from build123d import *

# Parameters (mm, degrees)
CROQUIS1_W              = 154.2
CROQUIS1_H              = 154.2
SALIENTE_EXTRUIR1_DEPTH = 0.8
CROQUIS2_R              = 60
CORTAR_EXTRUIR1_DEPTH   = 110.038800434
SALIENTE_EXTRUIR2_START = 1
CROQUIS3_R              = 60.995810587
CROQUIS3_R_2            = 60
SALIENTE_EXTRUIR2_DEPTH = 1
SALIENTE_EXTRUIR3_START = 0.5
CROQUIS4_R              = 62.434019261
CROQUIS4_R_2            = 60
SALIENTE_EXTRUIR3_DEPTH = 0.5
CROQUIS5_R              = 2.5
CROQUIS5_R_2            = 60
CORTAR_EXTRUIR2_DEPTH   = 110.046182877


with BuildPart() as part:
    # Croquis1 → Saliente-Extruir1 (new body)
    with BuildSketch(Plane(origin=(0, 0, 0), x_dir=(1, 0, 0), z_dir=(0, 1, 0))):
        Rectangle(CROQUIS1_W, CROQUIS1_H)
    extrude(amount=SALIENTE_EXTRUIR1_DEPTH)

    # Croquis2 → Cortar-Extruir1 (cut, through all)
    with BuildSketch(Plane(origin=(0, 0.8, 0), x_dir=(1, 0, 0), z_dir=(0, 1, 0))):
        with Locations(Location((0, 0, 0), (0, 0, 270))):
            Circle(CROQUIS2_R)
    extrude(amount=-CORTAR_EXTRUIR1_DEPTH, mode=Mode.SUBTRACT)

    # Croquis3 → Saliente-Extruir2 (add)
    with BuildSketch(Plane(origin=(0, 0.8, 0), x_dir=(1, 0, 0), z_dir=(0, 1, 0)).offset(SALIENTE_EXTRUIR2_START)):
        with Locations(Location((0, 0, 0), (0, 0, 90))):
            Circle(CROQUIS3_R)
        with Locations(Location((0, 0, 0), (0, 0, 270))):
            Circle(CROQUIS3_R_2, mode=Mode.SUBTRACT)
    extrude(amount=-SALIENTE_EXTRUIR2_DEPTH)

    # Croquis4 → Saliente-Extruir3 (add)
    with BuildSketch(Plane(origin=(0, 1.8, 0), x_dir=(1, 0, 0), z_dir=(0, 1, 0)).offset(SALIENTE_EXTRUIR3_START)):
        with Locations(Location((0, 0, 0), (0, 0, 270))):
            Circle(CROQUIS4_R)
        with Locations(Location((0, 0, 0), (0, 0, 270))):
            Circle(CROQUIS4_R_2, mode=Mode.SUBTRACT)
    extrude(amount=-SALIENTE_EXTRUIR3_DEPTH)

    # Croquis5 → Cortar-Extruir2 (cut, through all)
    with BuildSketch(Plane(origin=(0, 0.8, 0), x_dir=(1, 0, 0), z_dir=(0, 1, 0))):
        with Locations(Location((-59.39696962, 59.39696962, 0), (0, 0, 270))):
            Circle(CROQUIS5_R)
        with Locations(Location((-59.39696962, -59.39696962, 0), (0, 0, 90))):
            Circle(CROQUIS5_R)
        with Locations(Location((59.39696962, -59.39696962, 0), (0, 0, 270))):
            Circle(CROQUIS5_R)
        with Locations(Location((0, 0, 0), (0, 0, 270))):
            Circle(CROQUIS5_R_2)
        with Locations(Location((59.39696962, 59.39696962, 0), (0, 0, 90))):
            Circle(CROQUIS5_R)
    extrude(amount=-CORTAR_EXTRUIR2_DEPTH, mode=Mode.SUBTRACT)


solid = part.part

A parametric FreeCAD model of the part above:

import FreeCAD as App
import Part
import Sketcher

V = App.Vector

doc = App.newDocument("Part")
params = doc.addObject("Spreadsheet::Sheet", "Params")
for row, (alias, value) in enumerate([
    ("sketch1_width", "154.2 mm"),
    ("pad1_length", "0.8 mm"),
    ("sketch2_diameter", "120 mm"),
    ("sketch3_diameter", "120 mm"),
    ("pad2_length", "1 mm"),
    ("sketch4_diameter", "120 mm"),
    ("pad3_length", "0.5 mm"),
    ("sketch5_diameter", "5 mm"),
    ("sketch5_diameter2", "120 mm"),
], start=1):
    params.set(f"A{row}", alias)
    params.set(f"B{row}", "=" + value)
    params.setAlias(f"B{row}", alias)

body = doc.addObject("PartDesign::Body", "Body")

sketch1 = body.newObject("Sketcher::SketchObject", "Sketch")
sketch1.AttachmentSupport = (doc.getObject("XZ_Plane"), [""])
sketch1.MapMode = "FlatFace"
sketch1.addGeometry([
    Part.LineSegment(V(-77, -77, 0), V(-77, 77, 0)),
    Part.LineSegment(V(-77, 77, 0), V(77, 77, 0)),
    Part.LineSegment(V(77, 77, 0), V(77, -77, 0)),
    Part.LineSegment(V(77, -77, 0), V(-77, -77, 0)),
], False)
sketch1.addConstraint([
    Sketcher.Constraint("Coincident", 0, 2, 1, 1),
    Sketcher.Constraint("Coincident", 1, 2, 2, 1),
    Sketcher.Constraint("Coincident", 2, 2, 3, 1),
    Sketcher.Constraint("Coincident", 3, 2, 0, 1),
    Sketcher.Constraint("Vertical", 0),
    Sketcher.Constraint("Horizontal", 1),
    Sketcher.Constraint("Vertical", 2),
    Sketcher.Constraint("Horizontal", 3),
    Sketcher.Constraint("Symmetric", 0, 2, 2, 2, -1, 1),
    Sketcher.Constraint("Equal", 3, 0),
    Sketcher.Constraint("DistanceX", 1, 1, 1, 2, 154.2),
])
sketch1.setExpression("Constraints[10]", "Params.sketch1_width")
pad1 = body.newObject("PartDesign::Pad", "Pad")
pad1.Profile = sketch1
pad1.setExpression("Length", "Params.pad1_length")
pad1.Reversed = True

sketch2 = body.newObject("Sketcher::SketchObject", "Sketch001")
sketch2.AttachmentSupport = (doc.getObject("XZ_Plane"), [""])
sketch2.MapMode = "FlatFace"
sketch2.AttachmentOffset = App.Placement(V(0, 0, -0.8), App.Rotation())
sketch2.addGeometry(Part.Circle(V(0, 0, 0), V(0, 0, 1), 60), False)
sketch2.addConstraint([
    Sketcher.Constraint("Coincident", 0, 3, -1, 1),
    Sketcher.Constraint("Diameter", 0, 120.0),
])
sketch2.setExpression("Constraints[1]", "Params.sketch2_diameter")
pocket1 = body.newObject("PartDesign::Pocket", "Pocket")
pocket1.Profile = sketch2
pocket1.Type = "ThroughAll"
pocket1.Reversed = True

sketch3 = body.newObject("Sketcher::SketchObject", "Sketch002")
sketch3.AttachmentSupport = (doc.getObject("XZ_Plane"), [""])
sketch3.MapMode = "FlatFace"
sketch3.AttachmentOffset = App.Placement(V(0, 0, -1.8), App.Rotation())
sketch3.addGeometry([
    Part.Circle(V(0, 0, 0), V(0, 0, 1), 61),
    Part.Circle(V(0, 0, 0), V(0, 0, 1), 60),
], False)
sketch3.addConstraint([
    Sketcher.Constraint("Coincident", 0, 3, -1, 1),
    Sketcher.Constraint("Coincident", 1, 3, -1, 1),
    Sketcher.Constraint("Diameter", 1, 120.0),
    Sketcher.Constraint("Diameter", 0, 121.991621),
])
sketch3.setExpression("Constraints[2]", "Params.sketch3_diameter")
pad2 = body.newObject("PartDesign::Pad", "Pad001")
pad2.Profile = sketch3
pad2.setExpression("Length", "Params.pad2_length")

sketch4 = body.newObject("Sketcher::SketchObject", "Sketch003")
sketch4.AttachmentSupport = (doc.getObject("XZ_Plane"), [""])
sketch4.MapMode = "FlatFace"
sketch4.AttachmentOffset = App.Placement(V(0, 0, -2.3), App.Rotation())
sketch4.addGeometry([
    Part.Circle(V(0, 0, 0), V(0, 0, 1), 62),
    Part.Circle(V(0, 0, 0), V(0, 0, 1), 60),
], False)
sketch4.addConstraint([
    Sketcher.Constraint("Coincident", 0, 3, -1, 1),
    Sketcher.Constraint("Coincident", 1, 3, -1, 1),
    Sketcher.Constraint("Diameter", 1, 120.0),
    Sketcher.Constraint("Diameter", 0, 124.868039),
])
sketch4.setExpression("Constraints[2]", "Params.sketch4_diameter")
pad3 = body.newObject("PartDesign::Pad", "Pad002")
pad3.Profile = sketch4
pad3.setExpression("Length", "Params.pad3_length")

sketch5 = body.newObject("Sketcher::SketchObject", "Sketch004")
sketch5.AttachmentSupport = (doc.getObject("XZ_Plane"), [""])
sketch5.MapMode = "FlatFace"
sketch5.AttachmentOffset = App.Placement(V(0, 0, -0.8), App.Rotation())
sketch5.addGeometry([
    Part.Circle(V(-59.4, -59.4, 0), V(0, 0, 1), 2.5),
    Part.Circle(V(-59.4, 59.4, 0), V(0, 0, 1), 2.5),
    Part.Circle(V(59.4, 59.4, 0), V(0, 0, 1), 2.5),
    Part.Circle(V(0, 0, 0), V(0, 0, 1), 60),
    Part.Circle(V(59.4, -59.4, 0), V(0, 0, 1), 2.5),
], False)
sketch5.addConstraint([
    Sketcher.Constraint("Coincident", 3, 3, -1, 1),
    Sketcher.Constraint("Equal", 0, 1),
    Sketcher.Constraint("Equal", 1, 2),
    Sketcher.Constraint("Equal", 2, 4),
    Sketcher.Constraint("Symmetric", 0, 3, 2, 3, -1, 1),
    Sketcher.Constraint("Symmetric", 1, 3, 4, 3, -1, 1),
    Sketcher.Constraint("Symmetric", 1, 3, 2, 3, -2),
    Sketcher.Constraint("Diameter", 0, 5.0),
    Sketcher.Constraint("Diameter", 3, 120.0),
    Sketcher.Constraint("DistanceX", 0, 3, -1, 1, 59.39697),
    Sketcher.Constraint("DistanceY", 0, 3, -1, 1, 59.39697),
])
sketch5.setExpression("Constraints[7]", "Params.sketch5_diameter")
sketch5.setExpression("Constraints[8]", "Params.sketch5_diameter2")
pocket2 = body.newObject("PartDesign::Pocket", "Pocket001")
pocket2.Profile = sketch5
pocket2.Type = "ThroughAll"
pocket2.Reversed = True

doc.recompute()
